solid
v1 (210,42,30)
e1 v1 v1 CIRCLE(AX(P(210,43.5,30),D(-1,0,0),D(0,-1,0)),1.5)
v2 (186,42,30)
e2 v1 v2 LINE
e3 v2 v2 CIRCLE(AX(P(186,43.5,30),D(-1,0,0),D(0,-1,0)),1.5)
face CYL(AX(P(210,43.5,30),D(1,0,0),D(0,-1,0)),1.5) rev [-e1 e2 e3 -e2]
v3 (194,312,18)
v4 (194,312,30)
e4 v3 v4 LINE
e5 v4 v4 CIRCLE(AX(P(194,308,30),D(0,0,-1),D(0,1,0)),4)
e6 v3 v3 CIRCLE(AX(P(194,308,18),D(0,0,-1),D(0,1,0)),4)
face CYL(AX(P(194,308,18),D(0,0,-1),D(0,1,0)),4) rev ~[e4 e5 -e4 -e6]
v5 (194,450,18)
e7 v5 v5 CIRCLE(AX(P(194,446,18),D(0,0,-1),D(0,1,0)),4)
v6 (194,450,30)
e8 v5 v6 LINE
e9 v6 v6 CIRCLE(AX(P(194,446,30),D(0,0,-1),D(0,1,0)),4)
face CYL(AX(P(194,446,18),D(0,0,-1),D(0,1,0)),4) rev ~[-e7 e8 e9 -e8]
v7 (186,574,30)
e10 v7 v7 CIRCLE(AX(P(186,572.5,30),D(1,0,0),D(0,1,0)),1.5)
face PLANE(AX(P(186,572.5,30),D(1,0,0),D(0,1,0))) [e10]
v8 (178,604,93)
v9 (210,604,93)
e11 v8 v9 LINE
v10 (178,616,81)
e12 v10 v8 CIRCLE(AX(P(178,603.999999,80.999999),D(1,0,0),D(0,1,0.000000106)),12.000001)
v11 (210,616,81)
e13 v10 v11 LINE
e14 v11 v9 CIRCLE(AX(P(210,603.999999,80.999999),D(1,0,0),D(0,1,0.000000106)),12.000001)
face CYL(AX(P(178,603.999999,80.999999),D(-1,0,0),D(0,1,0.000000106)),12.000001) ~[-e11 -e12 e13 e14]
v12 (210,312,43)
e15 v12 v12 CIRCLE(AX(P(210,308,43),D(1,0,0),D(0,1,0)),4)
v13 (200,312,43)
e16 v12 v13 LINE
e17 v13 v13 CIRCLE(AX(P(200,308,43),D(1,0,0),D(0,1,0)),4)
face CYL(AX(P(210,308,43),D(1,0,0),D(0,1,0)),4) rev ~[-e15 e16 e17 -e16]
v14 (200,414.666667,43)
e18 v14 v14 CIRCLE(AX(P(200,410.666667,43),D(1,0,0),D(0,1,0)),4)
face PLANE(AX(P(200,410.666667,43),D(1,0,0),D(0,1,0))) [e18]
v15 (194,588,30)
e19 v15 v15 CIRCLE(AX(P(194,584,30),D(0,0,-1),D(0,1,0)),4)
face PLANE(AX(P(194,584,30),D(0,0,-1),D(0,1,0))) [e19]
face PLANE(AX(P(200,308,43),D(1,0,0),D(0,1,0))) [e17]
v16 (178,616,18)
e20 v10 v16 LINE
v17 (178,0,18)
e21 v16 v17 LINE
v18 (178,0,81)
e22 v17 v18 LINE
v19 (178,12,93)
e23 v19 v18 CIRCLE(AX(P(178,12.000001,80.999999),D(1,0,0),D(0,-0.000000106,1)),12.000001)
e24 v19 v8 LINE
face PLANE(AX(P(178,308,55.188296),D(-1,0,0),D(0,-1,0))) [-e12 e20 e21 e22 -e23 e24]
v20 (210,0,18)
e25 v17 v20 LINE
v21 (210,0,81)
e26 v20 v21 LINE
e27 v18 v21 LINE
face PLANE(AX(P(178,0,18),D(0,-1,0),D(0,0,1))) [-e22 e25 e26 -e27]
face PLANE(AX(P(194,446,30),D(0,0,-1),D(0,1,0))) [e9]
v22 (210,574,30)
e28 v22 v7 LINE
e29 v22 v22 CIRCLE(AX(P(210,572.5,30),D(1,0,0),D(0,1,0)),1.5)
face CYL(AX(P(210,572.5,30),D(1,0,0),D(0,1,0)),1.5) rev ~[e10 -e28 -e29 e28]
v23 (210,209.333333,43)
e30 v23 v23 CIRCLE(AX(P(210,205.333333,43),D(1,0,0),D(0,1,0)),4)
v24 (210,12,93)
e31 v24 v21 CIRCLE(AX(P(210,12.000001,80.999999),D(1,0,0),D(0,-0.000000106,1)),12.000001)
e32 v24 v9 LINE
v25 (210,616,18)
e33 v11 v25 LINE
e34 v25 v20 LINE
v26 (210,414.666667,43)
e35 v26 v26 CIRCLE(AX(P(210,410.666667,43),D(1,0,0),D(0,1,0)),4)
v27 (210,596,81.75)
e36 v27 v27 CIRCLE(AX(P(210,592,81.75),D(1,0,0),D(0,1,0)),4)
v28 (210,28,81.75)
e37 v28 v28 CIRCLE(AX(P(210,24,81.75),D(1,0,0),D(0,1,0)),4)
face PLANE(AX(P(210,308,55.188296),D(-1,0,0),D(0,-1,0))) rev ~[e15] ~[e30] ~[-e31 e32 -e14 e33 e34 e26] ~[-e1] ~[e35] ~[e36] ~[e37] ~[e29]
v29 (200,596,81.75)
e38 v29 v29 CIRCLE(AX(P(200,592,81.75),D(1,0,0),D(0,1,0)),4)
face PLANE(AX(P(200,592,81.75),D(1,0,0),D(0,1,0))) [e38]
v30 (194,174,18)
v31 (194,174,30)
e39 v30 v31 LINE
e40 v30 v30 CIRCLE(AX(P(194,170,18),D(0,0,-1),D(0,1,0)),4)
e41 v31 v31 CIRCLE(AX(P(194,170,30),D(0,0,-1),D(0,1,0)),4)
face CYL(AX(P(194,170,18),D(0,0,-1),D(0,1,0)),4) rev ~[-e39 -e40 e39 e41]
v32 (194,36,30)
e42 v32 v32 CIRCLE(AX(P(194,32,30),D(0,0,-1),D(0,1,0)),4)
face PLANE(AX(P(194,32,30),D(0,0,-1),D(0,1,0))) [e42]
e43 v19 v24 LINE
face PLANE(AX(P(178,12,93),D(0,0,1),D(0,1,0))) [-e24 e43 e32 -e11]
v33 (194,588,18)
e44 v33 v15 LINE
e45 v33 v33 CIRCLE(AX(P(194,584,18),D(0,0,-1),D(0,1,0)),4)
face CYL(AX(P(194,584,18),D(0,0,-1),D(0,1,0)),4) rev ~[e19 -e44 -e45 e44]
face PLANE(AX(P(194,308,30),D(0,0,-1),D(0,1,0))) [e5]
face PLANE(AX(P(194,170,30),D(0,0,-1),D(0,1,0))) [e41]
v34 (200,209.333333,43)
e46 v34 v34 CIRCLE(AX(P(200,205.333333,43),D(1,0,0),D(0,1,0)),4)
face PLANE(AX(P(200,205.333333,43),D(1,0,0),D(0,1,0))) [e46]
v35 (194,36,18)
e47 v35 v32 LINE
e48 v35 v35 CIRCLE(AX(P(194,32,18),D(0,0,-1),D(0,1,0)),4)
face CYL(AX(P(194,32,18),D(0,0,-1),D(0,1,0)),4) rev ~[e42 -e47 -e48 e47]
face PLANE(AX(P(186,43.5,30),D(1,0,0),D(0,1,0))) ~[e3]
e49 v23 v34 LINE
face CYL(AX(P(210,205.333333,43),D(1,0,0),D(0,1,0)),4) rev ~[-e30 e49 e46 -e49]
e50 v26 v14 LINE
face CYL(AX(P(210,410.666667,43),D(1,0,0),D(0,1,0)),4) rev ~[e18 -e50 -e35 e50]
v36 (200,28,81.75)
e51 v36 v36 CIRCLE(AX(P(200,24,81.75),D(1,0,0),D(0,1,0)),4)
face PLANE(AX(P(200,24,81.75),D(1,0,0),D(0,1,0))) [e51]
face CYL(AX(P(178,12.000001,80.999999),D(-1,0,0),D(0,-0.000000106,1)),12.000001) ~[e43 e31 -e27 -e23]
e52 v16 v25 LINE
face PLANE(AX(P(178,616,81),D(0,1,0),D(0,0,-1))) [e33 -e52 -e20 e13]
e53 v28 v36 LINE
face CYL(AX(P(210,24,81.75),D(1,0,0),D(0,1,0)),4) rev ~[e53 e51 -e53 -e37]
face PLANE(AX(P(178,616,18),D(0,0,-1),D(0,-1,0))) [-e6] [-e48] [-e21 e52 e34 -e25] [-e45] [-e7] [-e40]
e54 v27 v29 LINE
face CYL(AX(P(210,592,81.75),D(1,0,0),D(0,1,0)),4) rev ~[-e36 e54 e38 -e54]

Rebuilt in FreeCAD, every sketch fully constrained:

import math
import FreeCAD as App
import Part
import Sketcher
from FreeCAD import Vector

doc = App.newDocument("Part")
body = doc.addObject("PartDesign::Body", "Body")

# Sketch on XY plane
sketch1 = body.newObject("Sketcher::SketchObject", "Sketch")
sketch1.AttachmentSupport = (doc.getObject("XY_Plane"), [""])
sketch1.MapMode = "FlatFace"
sketch1.addGeometry(Part.LineSegment(Vector(296, 75, 0), Vector(-296, 75, 0)), False)
sketch1.addGeometry(Part.ArcOfCircle(Part.Circle(Vector(-295.999999, 62.999999, 0), Vector(0, 0, 1), 12.000001), math.radians(90.000006), math.radians(179.999994)), False)
sketch1.addGeometry(Part.LineSegment(Vector(-308, 63, 0), Vector(-308, 0, 0)), False)
sketch1.addGeometry(Part.LineSegment(Vector(-308, 0, 0), Vector(308, 0, 0)), False)
sketch1.addGeometry(Part.LineSegment(Vector(308, 0, 0), Vector(308, 63, 0)), False)
sketch1.addGeometry(Part.ArcOfCircle(Part.Circle(Vector(295.999999, 62.999999, 0), Vector(0, 0, 1), 12.000001), math.radians(0.000006), math.radians(89.999994)), False)
sketch1.addConstraint(Sketcher.Constraint("Tangent", 0, 2, 1, 1))
sketch1.addConstraint(Sketcher.Constraint("Tangent", 1, 2, 2, 1))
sketch1.addConstraint(Sketcher.Constraint("Coincident", 2, 2, 3, 1))
sketch1.addConstraint(Sketcher.Constraint("Coincident", 3, 2, 4, 1))
sketch1.addConstraint(Sketcher.Constraint("Tangent", 4, 2, 5, 1))
sketch1.addConstraint(Sketcher.Constraint("Tangent", 5, 2, 0, 1))
sketch1.addConstraint(Sketcher.Constraint("Horizontal", 0))
sketch1.addConstraint(Sketcher.Constraint("Vertical", 2))
sketch1.addConstraint(Sketcher.Constraint("Horizontal", 3))
sketch1.addConstraint(Sketcher.Constraint("Vertical", 4))
sketch1.addConstraint(Sketcher.Constraint("Equal", 1, 5))
sketch1.addConstraint(Sketcher.Constraint("Symmetric", 2, 2, 3, 2, -1, 1))
sketch1.addConstraint(Sketcher.Constraint("Radius", 1, 12.000001))
sketch1.addConstraint(Sketcher.Constraint("DistanceX", 0, 2, 0, 1, 592.0))
sketch1.addConstraint(Sketcher.Constraint("DistanceY", 2, 2, 2, 1, 63.0))
pad1 = body.newObject("PartDesign::Pad", "Pad")
pad1.Profile = sketch1
pad1.Length = 32

# Sketch on XY plane
sketch2 = body.newObject("Sketcher::SketchObject", "Sketch001")
sketch2.AttachmentSupport = (doc.getObject("XY_Plane"), [""])
sketch2.MapMode = "FlatFace"
sketch2.AttachmentOffset = App.Placement(Vector(0, 0, 32), App.Rotation())
sketch2.addGeometry(Part.Circle(Vector(264.5, 12, 0), Vector(0, 0, 1), 1.5), False)
sketch2.addConstraint(Sketcher.Constraint("Diameter", 0, 3.0))
sketch2.addConstraint(Sketcher.Constraint("DistanceY", -1, 1, 0, 3, 12.0))
sketch2.addConstraint(Sketcher.Constraint("DistanceX", -1, 1, 0, 3, 264.5))
pocket1 = body.newObject("PartDesign::Pocket", "Pocket")
pocket1.Profile = sketch2
pocket1.Length = 24
doc.recompute()

mirrored = body.newObject("PartDesign::Mirrored", "Mirrored")
mirrored.Originals = [pocket1]
mirrored.MirrorPlane = (doc.getObject("YZ_Plane"), [""])
body.Tip = mirrored

# Sketch on XY plane
sketch3 = body.newObject("Sketcher::SketchObject", "Sketch002")
sketch3.AttachmentSupport = (doc.getObject("XY_Plane"), [""])
sketch3.MapMode = "FlatFace"
sketch3.AttachmentOffset = App.Placement(Vector(0, 0, 32), App.Rotation())
sketch3.addGeometry(Part.Circle(Vector(-284, 63.75, 0), Vector(0, 0, 1), 4), False)
sketch3.addGeometry(Part.Circle(Vector(284, 63.75, 0), Vector(0, 0, 1), 4), False)
sketch3.addGeometry(Part.Circle(Vector(-102.666667, 25, 0), Vector(0, 0, 1), 4), False)
sketch3.addGeometry(Part.Circle(Vector(0, 25, 0), Vector(0, 0, 1), 4), False)
sketch3.addGeometry(Part.Circle(Vector(102.666667, 25, 0), Vector(0, 0, 1), 4), False)
sketch3.addConstraint(Sketcher.Constraint("Equal", 0, 1))
sketch3.addConstraint(Sketcher.Constraint("Equal", 1, 2))
sketch3.addConstraint(Sketcher.Constraint("Equal", 2, 3))
sketch3.addConstraint(Sketcher.Constraint("Equal", 3, 4))
sketch3.addConstraint(Sketcher.Constraint("Symmetric", 0, 3, 1, 3, -2))
sketch3.addConstraint(Sketcher.Constraint("Symmetric", 2, 3, 4, 3, -2))
sketch3.addConstraint(Sketcher.Constraint("PointOnObject", 3, 3, -2))
sketch3.addConstraint(Sketcher.Constraint("Horizontal", 2, 3, 3, 3))
sketch3.addConstraint(Sketcher.Constraint("Diameter", 0, 8.0))
sketch3.addConstraint(Sketcher.Constraint("DistanceX", 0, 3, -1, 1, 284.0))
sketch3.addConstraint(Sketcher.Constraint("DistanceY", -1, 1, 2, 3, 25.0))
sketch3.addConstraint(Sketcher.Constraint("DistanceY", -1, 1, 0, 3, 63.75))
sketch3.addConstraint(Sketcher.Constraint("DistanceX", 2, 3, -1, 1, 102.666667))
pocket2 = body.newObject("PartDesign::Pocket", "Pocket001")
pocket2.Profile = sketch3
pocket2.Length = 10

# Sketch on XZ plane
sketch4 = body.newObject("Sketcher::SketchObject", "Sketch003")
sketch4.AttachmentSupport = (doc.getObject("XZ_Plane"), [""])
sketch4.MapMode = "FlatFace"
sketch4.addGeometry(Part.Circle(Vector(276, 16, 0), Vector(0, 0, 1), 4), False)
sketch4.addConstraint(Sketcher.Constraint("Diameter", 0, 8.0))
sketch4.addConstraint(Sketcher.Constraint("DistanceX", -1, 1, 0, 3, 276.0))
sketch4.addConstraint(Sketcher.Constraint("DistanceY", -1, 1, 0, 3, 16.0))
pocket3 = body.newObject("PartDesign::Pocket", "Pocket002")
pocket3.Profile = sketch4
pocket3.Length = 12
doc.recompute()

linearpattern = body.newObject("PartDesign::LinearPattern", "LinearPattern")
linearpattern.Originals = [pocket3]
linearpattern.Direction = (doc.getObject("X_Axis"), [""])
linearpattern.Mode = "offset"
linearpattern.Offset = 138
linearpattern.Occurrences = 5
linearpattern.Reversed = True
body.Tip = linearpattern
body2 = doc.addObject("PartDesign::Body", "Body001")
doc.recompute()

body.Placement = App.Placement(Vector(0, 0, 0), App.Rotation(Vector(1, 0, 0), 90))
boolean = body2.newObject("PartDesign::Boolean", "Boolean")
boolean.Type = "Fuse"
boolean.addObjects([body])
body3 = doc.addObject("PartDesign::Body", "Body002")
doc.recompute()

body2.Placement = App.Placement(Vector(178, 308, 18), App.Rotation(Vector(0, 0, 1), 90))
boolean2 = body3.newObject("PartDesign::Boolean", "Boolean001")
boolean2.Type = "Fuse"
boolean2.addObjects([body2])

doc.recompute()
